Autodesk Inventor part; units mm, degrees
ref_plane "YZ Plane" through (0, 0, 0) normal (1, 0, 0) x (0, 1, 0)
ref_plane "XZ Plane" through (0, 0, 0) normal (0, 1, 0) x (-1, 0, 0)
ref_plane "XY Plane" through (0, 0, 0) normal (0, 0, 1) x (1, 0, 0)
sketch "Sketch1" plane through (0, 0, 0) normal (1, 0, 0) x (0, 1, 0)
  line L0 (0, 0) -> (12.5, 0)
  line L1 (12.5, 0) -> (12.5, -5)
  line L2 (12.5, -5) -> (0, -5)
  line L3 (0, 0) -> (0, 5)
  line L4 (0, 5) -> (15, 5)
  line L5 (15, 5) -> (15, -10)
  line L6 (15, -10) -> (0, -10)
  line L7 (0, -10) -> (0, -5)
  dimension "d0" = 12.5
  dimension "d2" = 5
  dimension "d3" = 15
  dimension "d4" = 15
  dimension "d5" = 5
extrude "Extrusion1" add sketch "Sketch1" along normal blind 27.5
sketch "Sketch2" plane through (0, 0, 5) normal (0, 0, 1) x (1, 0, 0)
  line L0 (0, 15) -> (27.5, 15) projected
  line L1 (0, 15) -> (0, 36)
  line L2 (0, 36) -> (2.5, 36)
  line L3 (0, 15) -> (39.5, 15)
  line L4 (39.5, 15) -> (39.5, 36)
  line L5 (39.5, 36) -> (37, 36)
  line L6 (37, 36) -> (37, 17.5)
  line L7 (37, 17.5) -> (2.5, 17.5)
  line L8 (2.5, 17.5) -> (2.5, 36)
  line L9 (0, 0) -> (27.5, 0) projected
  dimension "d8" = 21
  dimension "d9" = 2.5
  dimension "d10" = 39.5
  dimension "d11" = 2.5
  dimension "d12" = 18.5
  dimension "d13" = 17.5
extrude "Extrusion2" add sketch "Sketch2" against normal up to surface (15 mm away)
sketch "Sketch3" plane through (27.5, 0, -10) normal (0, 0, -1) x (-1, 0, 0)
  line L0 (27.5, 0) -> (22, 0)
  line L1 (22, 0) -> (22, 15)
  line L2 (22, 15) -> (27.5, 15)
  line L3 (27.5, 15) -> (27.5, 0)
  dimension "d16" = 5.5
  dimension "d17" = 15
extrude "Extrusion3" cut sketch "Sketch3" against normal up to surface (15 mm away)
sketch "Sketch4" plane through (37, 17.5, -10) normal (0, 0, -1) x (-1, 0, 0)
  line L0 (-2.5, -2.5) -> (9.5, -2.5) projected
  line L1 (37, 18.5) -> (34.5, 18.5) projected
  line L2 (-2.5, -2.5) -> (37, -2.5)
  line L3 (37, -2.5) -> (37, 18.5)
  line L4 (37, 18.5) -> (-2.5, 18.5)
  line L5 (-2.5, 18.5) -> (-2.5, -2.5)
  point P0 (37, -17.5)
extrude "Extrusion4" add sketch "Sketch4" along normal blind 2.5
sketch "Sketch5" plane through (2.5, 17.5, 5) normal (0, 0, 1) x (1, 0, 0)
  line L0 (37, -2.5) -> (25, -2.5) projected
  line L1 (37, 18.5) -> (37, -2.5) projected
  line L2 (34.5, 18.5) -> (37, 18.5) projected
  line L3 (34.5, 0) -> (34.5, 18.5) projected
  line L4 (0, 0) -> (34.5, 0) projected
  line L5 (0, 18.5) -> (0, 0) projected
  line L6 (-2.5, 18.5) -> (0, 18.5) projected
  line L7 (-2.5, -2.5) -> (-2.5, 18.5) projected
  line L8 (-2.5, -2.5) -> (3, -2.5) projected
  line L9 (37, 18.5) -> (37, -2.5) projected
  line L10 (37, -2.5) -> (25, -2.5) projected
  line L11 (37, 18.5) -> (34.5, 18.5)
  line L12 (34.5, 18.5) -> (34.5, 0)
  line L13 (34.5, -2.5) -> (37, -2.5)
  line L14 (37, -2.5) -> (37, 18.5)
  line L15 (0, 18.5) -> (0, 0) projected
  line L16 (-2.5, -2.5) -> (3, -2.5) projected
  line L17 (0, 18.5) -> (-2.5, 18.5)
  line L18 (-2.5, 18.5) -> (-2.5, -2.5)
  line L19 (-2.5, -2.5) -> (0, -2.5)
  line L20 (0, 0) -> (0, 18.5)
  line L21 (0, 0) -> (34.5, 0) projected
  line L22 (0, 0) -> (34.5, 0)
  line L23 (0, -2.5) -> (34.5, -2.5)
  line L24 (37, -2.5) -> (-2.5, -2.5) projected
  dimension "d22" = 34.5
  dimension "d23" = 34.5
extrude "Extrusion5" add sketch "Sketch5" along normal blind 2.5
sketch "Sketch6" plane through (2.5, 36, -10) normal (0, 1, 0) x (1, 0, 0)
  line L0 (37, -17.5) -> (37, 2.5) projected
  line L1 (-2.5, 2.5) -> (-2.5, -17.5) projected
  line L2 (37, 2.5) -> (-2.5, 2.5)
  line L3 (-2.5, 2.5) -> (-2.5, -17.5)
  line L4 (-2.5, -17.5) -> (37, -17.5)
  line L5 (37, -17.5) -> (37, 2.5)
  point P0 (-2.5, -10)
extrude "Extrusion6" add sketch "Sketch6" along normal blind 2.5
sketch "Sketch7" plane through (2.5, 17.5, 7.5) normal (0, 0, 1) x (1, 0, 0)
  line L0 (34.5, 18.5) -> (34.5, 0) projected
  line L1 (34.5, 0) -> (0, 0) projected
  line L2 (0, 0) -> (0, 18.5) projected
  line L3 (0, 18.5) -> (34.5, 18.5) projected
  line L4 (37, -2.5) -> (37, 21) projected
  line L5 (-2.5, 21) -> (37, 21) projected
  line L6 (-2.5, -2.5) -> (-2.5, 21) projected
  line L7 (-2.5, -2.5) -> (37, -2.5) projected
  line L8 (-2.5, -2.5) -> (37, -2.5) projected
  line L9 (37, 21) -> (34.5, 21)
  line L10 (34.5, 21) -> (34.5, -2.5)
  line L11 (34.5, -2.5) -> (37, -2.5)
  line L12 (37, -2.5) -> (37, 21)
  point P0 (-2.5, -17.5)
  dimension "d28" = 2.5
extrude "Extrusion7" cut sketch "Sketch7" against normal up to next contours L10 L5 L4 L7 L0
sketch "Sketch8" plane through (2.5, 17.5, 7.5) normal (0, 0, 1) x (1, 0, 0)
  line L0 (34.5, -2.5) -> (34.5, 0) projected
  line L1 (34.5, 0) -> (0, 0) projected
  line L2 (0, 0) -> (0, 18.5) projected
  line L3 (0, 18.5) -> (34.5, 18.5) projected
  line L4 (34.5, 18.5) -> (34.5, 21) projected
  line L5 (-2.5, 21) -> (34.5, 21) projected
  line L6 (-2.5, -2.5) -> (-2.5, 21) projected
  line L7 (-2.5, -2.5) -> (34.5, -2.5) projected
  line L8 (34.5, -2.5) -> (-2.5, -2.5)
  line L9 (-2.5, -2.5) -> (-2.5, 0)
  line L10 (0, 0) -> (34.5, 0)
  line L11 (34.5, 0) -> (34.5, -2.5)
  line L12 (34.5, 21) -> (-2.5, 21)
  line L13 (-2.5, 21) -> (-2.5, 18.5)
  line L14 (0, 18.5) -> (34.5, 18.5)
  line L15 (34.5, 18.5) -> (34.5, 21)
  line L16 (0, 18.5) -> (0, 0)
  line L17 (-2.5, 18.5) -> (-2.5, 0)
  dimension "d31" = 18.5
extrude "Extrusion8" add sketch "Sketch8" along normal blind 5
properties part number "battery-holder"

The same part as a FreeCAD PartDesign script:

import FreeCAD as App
import Part
import Sketcher
from FreeCAD import Vector


def add_polygon(sketch, points):
    """Adds a closed chain of lines whose ends are joined by coincident constraints."""
    first, n = sketch.GeometryCount, len(points)
    for a, b in zip(points, points[1:] + points[:1]):
        sketch.addGeometry(Part.LineSegment(App.Vector(*a, 0), App.Vector(*b, 0)), False)
    for i in range(n):
        sketch.addConstraint(Sketcher.Constraint("Coincident", first + i, 2, first + (i + 1) % n, 1))

doc = App.newDocument("Part")
params = doc.addObject("Spreadsheet::Sheet", "Params")
for row, (alias, value) in enumerate([
    ("sketch1_width", "15 mm"),
    ("sketch1_width2", "12.5 mm"),
    ("pad1_length", "27.5 mm"),
    ("sketch2_height", "21 mm"),
    ("sketch2_width", "39.5 mm"),
    ("sketch2_width2", "2.5 mm"),
    ("sketch2_height2", "18.5 mm"),
    ("pad2_length", "15 mm"),
    ("sketch3_height", "15 mm"),
    ("sketch3_width", "5.5 mm"),
    ("pocket1_length", "15 mm"),
    ("sketch4_height", "21 mm"),
    ("sketch4_width", "39.5 mm"),
    ("pad3_length", "2.5 mm"),
    ("sketch5_width", "34.5 mm"),
    ("sketch5_height", "21 mm"),
    ("sketch5_width2", "39.5 mm"),
    ("sketch5_height2", "18.5 mm"),
    ("pad4_length", "2.5 mm"),
    ("sketch6_height", "20 mm"),
    ("sketch6_width", "39.5 mm"),
    ("pad5_length", "2.5 mm"),
    ("sketch7_width", "2.5 mm"),
    ("sketch7_height", "23.5 mm"),
    ("sketch8_height", "18.5 mm"),
    ("sketch8_width", "37 mm"),
    ("sketch8_width2", "34.5 mm"),
    ("sketch8_height2", "2.5 mm"),
    ("pad6_length", "5 mm"),
], start=1):
    params.set(f"A{row}", alias)
    params.set(f"B{row}", "=" + value)
    params.setAlias(f"B{row}", alias)

body = doc.addObject("PartDesign::Body", "Body")

sketch1 = body.newObject("Sketcher::SketchObject", "Sketch")
sketch1.AttachmentSupport = (doc.getObject("YZ_Plane"), [""])
sketch1.MapMode = "FlatFace"
add_polygon(sketch1, [(0, 5), (0, 0), (12.5, 0), (12.5, -5), (0, -5), (0, -10), (15, -10), (15, 5)])
sketch1.addConstraint([
    Sketcher.Constraint("Vertical", 0),
    Sketcher.Constraint("Horizontal", 1),
    Sketcher.Constraint("Vertical", 2),
    Sketcher.Constraint("Horizontal", 3),
    Sketcher.Constraint("Vertical", 4),
    Sketcher.Constraint("Horizontal", 5),
    Sketcher.Constraint("Vertical", 6),
    Sketcher.Constraint("Horizontal", 7),
    Sketcher.Constraint("Coincident", 0, 2, -1, 1),
    Sketcher.Constraint("Symmetric", 3, 2, 7, 2, -1, 1),
    Sketcher.Constraint("Equal", 2, 4),
    Sketcher.Constraint("Equal", 7, 6),
    Sketcher.Constraint("DistanceX", 5, 1, 5, 2, 15.0),
    Sketcher.Constraint("DistanceX", 1, 1, 1, 2, 12.5),
])
sketch1.setExpression("Constraints[20]", "Params.sketch1_width")
sketch1.setExpression("Constraints[21]", "Params.sketch1_width2")
pad1 = body.newObject("PartDesign::Pad", "Pad")
pad1.Profile = sketch1
pad1.setExpression("Length", "Params.pad1_length")

sketch2 = body.newObject("Sketcher::SketchObject", "Sketch001")
sketch2.AttachmentSupport = (doc.getObject("XY_Plane"), [""])
sketch2.MapMode = "FlatFace"
sketch2.AttachmentOffset = App.Placement(Vector(0, 0, 5), App.Rotation())
add_polygon(sketch2, [(0, 36), (0, 15), (39.5, 15), (39.5, 36), (37, 36), (37, 17.5), (2.5, 17.5), (2.5, 36)])
sketch2.addConstraint([
    Sketcher.Constraint("Vertical", 0),
    Sketcher.Constraint("Horizontal", 1),
    Sketcher.Constraint("Vertical", 2),
    Sketcher.Constraint("Horizontal", 3),
    Sketcher.Constraint("Vertical", 4),
    Sketcher.Constraint("Horizontal", 5),
    Sketcher.Constraint("Vertical", 6),
    Sketcher.Constraint("Horizontal", 7),
    Sketcher.Constraint("PointOnObject", 0, 2, -2),
    Sketcher.Constraint("Horizontal", 3, 2, 6, 2),
    Sketcher.Constraint("Equal", 3, 7),
    Sketcher.Constraint("DistanceY", 0, 2, 0, 1, 21.0),
    Sketcher.Constraint("DistanceX", 1, 1, 1, 2, 39.5),
    Sketcher.Constraint("DistanceX", 3, 2, 3, 1, 2.5),
    Sketcher.Constraint("DistanceY", 4, 2, 4, 1, 18.5),
    Sketcher.Constraint("DistanceY", -1, 1, 4, 2, 17.5),
])
sketch2.setExpression("Constraints[19]", "Params.sketch2_height")
sketch2.setExpression("Constraints[20]", "Params.sketch2_width")
sketch2.setExpression("Constraints[21]", "Params.sketch2_width2")
sketch2.setExpression("Constraints[22]", "Params.sketch2_height2")
pad2 = body.newObject("PartDesign::Pad", "Pad001")
pad2.Profile = sketch2
pad2.setExpression("Length", "Params.pad2_length")
pad2.Reversed = True

sketch3 = body.newObject("Sketcher::SketchObject", "Sketch002")
sketch3.AttachmentSupport = (doc.getObject("XY_Plane"), [""])
sketch3.MapMode = "FlatFace"
sketch3.AttachmentOffset = App.Placement(Vector(0, 0, -10), App.Rotation())
add_polygon(sketch3, [(5.5, 0), (0, 0), (0, 15), (5.5, 15)])
sketch3.addConstraint([
    Sketcher.Constraint("Horizontal", 0),
    Sketcher.Constraint("Vertical", 1),
    Sketcher.Constraint("Horizontal", 2),
    Sketcher.Constraint("Vertical", 3),
    Sketcher.Constraint("Coincident", 0, 2, -1, 1),
    Sketcher.Constraint("DistanceY", 1, 1, 1, 2, 15.0),
    Sketcher.Constraint("DistanceX", 0, 2, 0, 1, 5.5),
])
sketch3.setExpression("Constraints[9]", "Params.sketch3_height")
sketch3.setExpression("Constraints[10]", "Params.sketch3_width")
pocket1 = body.newObject("PartDesign::Pocket", "Pocket")
pocket1.Profile = sketch3
pocket1.setExpression("Length", "Params.pocket1_length")
pocket1.Reversed = True

sketch4 = body.newObject("Sketcher::SketchObject", "Sketch003")
sketch4.AttachmentSupport = (doc.getObject("XY_Plane"), [""])
sketch4.MapMode = "FlatFace"
sketch4.AttachmentOffset = App.Placement(Vector(0, 0, -10), App.Rotation())
add_polygon(sketch4, [(39.5, 36), (39.5, 15), (0, 15), (0, 36)])
sketch4.addConstraint([
    Sketcher.Constraint("Vertical", 0),
    Sketcher.Constraint("Horizontal", 1),
    Sketcher.Constraint("Vertical", 2),
    Sketcher.Constraint("Horizontal", 3),
    Sketcher.Constraint("PointOnObject", 1, 2, -2),
    Sketcher.Constraint("DistanceY", 0, 2, 0, 1, 21.0),
    Sketcher.Constraint("DistanceX", 1, 2, 1, 1, 39.5),
    Sketcher.Constraint("DistanceY", -1, 1, 0, 2, 15.0),
])
sketch4.setExpression("Constraints[9]", "Params.sketch4_height")
sketch4.setExpression("Constraints[10]", "Params.sketch4_width")
pad3 = body.newObject("PartDesign::Pad", "Pad002")
pad3.Profile = sketch4
pad3.setExpression("Length", "Params.pad3_length")
pad3.Reversed = True

sketch5 = body.newObject("Sketcher::SketchObject", "Sketch004")
sketch5.AttachmentSupport = (doc.getObject("XY_Plane"), [""])
sketch5.MapMode = "FlatFace"
sketch5.AttachmentOffset = App.Placement(Vector(0, 0, 5), App.Rotation())
add_polygon(sketch5, [(0, 15), (39.5, 15), (39.5, 36), (37, 36), (37, 17.5), (2.5, 17.5), (2.5, 36), (0, 36)])
sketch5.addConstraint([
    Sketcher.Constraint("Horizontal", 0),
    Sketcher.Constraint("Vertical", 1),
    Sketcher.Constraint("Horizontal", 2),
    Sketcher.Constraint("Vertical", 3),
    Sketcher.Constraint("Horizontal", 4),
    Sketcher.Constraint("Vertical", 5),
    Sketcher.Constraint("Horizontal", 6),
    Sketcher.Constraint("Vertical", 7),
    Sketcher.Constraint("PointOnObject", 6, 2, -2),
    Sketcher.Constraint("Horizontal", 2, 2, 5, 2),
    Sketcher.Constraint("Equal", 2, 6),
    Sketcher.Constraint("DistanceX", 4, 2, 4, 1, 34.5),
    Sketcher.Constraint("DistanceY", 1, 1, 1, 2, 21.0),
    Sketcher.Constraint("DistanceX", 0, 1, 0, 2, 39.5),
    Sketcher.Constraint("DistanceY", 3, 2, 3, 1, 18.5),
    Sketcher.Constraint("DistanceY", -1, 1, 0, 2, 15.0),
])
sketch5.setExpression("Constraints[19]", "Params.sketch5_width")
sketch5.setExpression("Constraints[20]", "Params.sketch5_height")
sketch5.setExpression("Constraints[21]", "Params.sketch5_width2")
sketch5.setExpression("Constraints[22]", "Params.sketch5_height2")
pad4 = body.newObject("PartDesign::Pad", "Pad003")
pad4.Profile = sketch5
pad4.setExpression("Length", "Params.pad4_length")

sketch6 = body.newObject("Sketcher::SketchObject", "Sketch005")
sketch6.AttachmentSupport = (doc.getObject("XZ_Plane"), [""])
sketch6.MapMode = "FlatFace"
sketch6.AttachmentOffset = App.Placement(Vector(0, 0, -36), App.Rotation())
add_polygon(sketch6, [(0, 7.5), (39.5, 7.5), (39.5, -12.5), (0, -12.5)])
sketch6.addConstraint([
    Sketcher.Constraint("Horizontal", 0),
    Sketcher.Constraint("Vertical", 1),
    Sketcher.Constraint("Horizontal", 2),
    Sketcher.Constraint("Vertical", 3),
    Sketcher.Constraint("PointOnObject", 2, 2, -2),
    Sketcher.Constraint("DistanceY", 1, 2, 1, 1, 20.0),
    Sketcher.Constraint("DistanceX", 0, 1, 0, 2, 39.5),
    Sketcher.Constraint("DistanceY", -1, 1, 0, 2, 7.5),
])
sketch6.setExpression("Constraints[9]", "Params.sketch6_height")
sketch6.setExpression("Constraints[10]", "Params.sketch6_width")
pad5 = body.newObject("PartDesign::Pad", "Pad004")
pad5.Profile = sketch6
pad5.setExpression("Length", "Params.pad5_length")
pad5.Reversed = True

sketch7 = body.newObject("Sketcher::SketchObject", "Sketch006")
sketch7.AttachmentSupport = (doc.getObject("XY_Plane"), [""])
sketch7.MapMode = "FlatFace"
sketch7.AttachmentOffset = App.Placement(Vector(0, 0, 7.5), App.Rotation())
add_polygon(sketch7, [(37, 38.5), (37, 15), (39.5, 15), (39.5, 38.5)])
sketch7.addConstraint([
    Sketcher.Constraint("Vertical", 0),
    Sketcher.Constraint("Horizontal", 1),
    Sketcher.Constraint("Vertical", 2),
    Sketcher.Constraint("Horizontal", 3),
    Sketcher.Constraint("DistanceX", 1, 1, 1, 2, 2.5),
    Sketcher.Constraint("DistanceY", 0, 2, 0, 1, 23.5),
    Sketcher.Constraint("DistanceX", -1, 1, 0, 2, 37.0),
    Sketcher.Constraint("DistanceY", -1, 1, 0, 2, 15.0),
])
sketch7.setExpression("Constraints[8]", "Params.sketch7_width")
sketch7.setExpression("Constraints[9]", "Params.sketch7_height")
pocket2 = body.newObject("PartDesign::Pocket", "Pocket001")
pocket2.Profile = sketch7
pocket2.Type = "UpToFirst"

sketch8 = body.newObject("Sketcher::SketchObject", "Sketch007")
sketch8.AttachmentSupport = (doc.getObject("XY_Plane"), [""])
sketch8.MapMode = "FlatFace"
sketch8.AttachmentOffset = App.Placement(Vector(0, 0, 7.5), App.Rotation())
add_polygon(sketch8, [(0, 15), (37, 15), (37, 17.5), (2.5, 17.5), (2.5, 36), (37, 36), (37, 38.5), (0, 38.5)])
sketch8.addConstraint([
    Sketcher.Constraint("Horizontal", 0),
    Sketcher.Constraint("Vertical", 1),
    Sketcher.Constraint("Horizontal", 2),
    Sketcher.Constraint("Vertical", 3),
    Sketcher.Constraint("Horizontal", 4),
    Sketcher.Constraint("Vertical", 5),
    Sketcher.Constraint("Horizontal", 6),
    Sketcher.Constraint("Vertical", 7),
    Sketcher.Constraint("PointOnObject", 6, 2, -2),
    Sketcher.Constraint("Vertical", 1, 2, 4, 2),
    Sketcher.Constraint("Equal", 1, 5),
    Sketcher.Constraint("DistanceY", 3, 1, 3, 2, 18.5),
    Sketcher.Constraint("DistanceX", 0, 1, 0, 2, 37.0),
    Sketcher.Constraint("DistanceX", 2, 2, 2, 1, 34.5),
    Sketcher.Constraint("DistanceY", 1, 1, 1, 2, 2.5),
    Sketcher.Constraint("DistanceY", -1, 1, 0, 2, 15.0),
])
sketch8.setExpression("Constraints[19]", "Params.sketch8_height")
sketch8.setExpression("Constraints[20]", "Params.sketch8_width")
sketch8.setExpression("Constraints[21]", "Params.sketch8_width2")
sketch8.setExpression("Constraints[22]", "Params.sketch8_height2")
pad6 = body.newObject("PartDesign::Pad", "Pad005")
pad6.Profile = sketch8
pad6.setExpression("Length", "Params.pad6_length")

doc.recompute()
